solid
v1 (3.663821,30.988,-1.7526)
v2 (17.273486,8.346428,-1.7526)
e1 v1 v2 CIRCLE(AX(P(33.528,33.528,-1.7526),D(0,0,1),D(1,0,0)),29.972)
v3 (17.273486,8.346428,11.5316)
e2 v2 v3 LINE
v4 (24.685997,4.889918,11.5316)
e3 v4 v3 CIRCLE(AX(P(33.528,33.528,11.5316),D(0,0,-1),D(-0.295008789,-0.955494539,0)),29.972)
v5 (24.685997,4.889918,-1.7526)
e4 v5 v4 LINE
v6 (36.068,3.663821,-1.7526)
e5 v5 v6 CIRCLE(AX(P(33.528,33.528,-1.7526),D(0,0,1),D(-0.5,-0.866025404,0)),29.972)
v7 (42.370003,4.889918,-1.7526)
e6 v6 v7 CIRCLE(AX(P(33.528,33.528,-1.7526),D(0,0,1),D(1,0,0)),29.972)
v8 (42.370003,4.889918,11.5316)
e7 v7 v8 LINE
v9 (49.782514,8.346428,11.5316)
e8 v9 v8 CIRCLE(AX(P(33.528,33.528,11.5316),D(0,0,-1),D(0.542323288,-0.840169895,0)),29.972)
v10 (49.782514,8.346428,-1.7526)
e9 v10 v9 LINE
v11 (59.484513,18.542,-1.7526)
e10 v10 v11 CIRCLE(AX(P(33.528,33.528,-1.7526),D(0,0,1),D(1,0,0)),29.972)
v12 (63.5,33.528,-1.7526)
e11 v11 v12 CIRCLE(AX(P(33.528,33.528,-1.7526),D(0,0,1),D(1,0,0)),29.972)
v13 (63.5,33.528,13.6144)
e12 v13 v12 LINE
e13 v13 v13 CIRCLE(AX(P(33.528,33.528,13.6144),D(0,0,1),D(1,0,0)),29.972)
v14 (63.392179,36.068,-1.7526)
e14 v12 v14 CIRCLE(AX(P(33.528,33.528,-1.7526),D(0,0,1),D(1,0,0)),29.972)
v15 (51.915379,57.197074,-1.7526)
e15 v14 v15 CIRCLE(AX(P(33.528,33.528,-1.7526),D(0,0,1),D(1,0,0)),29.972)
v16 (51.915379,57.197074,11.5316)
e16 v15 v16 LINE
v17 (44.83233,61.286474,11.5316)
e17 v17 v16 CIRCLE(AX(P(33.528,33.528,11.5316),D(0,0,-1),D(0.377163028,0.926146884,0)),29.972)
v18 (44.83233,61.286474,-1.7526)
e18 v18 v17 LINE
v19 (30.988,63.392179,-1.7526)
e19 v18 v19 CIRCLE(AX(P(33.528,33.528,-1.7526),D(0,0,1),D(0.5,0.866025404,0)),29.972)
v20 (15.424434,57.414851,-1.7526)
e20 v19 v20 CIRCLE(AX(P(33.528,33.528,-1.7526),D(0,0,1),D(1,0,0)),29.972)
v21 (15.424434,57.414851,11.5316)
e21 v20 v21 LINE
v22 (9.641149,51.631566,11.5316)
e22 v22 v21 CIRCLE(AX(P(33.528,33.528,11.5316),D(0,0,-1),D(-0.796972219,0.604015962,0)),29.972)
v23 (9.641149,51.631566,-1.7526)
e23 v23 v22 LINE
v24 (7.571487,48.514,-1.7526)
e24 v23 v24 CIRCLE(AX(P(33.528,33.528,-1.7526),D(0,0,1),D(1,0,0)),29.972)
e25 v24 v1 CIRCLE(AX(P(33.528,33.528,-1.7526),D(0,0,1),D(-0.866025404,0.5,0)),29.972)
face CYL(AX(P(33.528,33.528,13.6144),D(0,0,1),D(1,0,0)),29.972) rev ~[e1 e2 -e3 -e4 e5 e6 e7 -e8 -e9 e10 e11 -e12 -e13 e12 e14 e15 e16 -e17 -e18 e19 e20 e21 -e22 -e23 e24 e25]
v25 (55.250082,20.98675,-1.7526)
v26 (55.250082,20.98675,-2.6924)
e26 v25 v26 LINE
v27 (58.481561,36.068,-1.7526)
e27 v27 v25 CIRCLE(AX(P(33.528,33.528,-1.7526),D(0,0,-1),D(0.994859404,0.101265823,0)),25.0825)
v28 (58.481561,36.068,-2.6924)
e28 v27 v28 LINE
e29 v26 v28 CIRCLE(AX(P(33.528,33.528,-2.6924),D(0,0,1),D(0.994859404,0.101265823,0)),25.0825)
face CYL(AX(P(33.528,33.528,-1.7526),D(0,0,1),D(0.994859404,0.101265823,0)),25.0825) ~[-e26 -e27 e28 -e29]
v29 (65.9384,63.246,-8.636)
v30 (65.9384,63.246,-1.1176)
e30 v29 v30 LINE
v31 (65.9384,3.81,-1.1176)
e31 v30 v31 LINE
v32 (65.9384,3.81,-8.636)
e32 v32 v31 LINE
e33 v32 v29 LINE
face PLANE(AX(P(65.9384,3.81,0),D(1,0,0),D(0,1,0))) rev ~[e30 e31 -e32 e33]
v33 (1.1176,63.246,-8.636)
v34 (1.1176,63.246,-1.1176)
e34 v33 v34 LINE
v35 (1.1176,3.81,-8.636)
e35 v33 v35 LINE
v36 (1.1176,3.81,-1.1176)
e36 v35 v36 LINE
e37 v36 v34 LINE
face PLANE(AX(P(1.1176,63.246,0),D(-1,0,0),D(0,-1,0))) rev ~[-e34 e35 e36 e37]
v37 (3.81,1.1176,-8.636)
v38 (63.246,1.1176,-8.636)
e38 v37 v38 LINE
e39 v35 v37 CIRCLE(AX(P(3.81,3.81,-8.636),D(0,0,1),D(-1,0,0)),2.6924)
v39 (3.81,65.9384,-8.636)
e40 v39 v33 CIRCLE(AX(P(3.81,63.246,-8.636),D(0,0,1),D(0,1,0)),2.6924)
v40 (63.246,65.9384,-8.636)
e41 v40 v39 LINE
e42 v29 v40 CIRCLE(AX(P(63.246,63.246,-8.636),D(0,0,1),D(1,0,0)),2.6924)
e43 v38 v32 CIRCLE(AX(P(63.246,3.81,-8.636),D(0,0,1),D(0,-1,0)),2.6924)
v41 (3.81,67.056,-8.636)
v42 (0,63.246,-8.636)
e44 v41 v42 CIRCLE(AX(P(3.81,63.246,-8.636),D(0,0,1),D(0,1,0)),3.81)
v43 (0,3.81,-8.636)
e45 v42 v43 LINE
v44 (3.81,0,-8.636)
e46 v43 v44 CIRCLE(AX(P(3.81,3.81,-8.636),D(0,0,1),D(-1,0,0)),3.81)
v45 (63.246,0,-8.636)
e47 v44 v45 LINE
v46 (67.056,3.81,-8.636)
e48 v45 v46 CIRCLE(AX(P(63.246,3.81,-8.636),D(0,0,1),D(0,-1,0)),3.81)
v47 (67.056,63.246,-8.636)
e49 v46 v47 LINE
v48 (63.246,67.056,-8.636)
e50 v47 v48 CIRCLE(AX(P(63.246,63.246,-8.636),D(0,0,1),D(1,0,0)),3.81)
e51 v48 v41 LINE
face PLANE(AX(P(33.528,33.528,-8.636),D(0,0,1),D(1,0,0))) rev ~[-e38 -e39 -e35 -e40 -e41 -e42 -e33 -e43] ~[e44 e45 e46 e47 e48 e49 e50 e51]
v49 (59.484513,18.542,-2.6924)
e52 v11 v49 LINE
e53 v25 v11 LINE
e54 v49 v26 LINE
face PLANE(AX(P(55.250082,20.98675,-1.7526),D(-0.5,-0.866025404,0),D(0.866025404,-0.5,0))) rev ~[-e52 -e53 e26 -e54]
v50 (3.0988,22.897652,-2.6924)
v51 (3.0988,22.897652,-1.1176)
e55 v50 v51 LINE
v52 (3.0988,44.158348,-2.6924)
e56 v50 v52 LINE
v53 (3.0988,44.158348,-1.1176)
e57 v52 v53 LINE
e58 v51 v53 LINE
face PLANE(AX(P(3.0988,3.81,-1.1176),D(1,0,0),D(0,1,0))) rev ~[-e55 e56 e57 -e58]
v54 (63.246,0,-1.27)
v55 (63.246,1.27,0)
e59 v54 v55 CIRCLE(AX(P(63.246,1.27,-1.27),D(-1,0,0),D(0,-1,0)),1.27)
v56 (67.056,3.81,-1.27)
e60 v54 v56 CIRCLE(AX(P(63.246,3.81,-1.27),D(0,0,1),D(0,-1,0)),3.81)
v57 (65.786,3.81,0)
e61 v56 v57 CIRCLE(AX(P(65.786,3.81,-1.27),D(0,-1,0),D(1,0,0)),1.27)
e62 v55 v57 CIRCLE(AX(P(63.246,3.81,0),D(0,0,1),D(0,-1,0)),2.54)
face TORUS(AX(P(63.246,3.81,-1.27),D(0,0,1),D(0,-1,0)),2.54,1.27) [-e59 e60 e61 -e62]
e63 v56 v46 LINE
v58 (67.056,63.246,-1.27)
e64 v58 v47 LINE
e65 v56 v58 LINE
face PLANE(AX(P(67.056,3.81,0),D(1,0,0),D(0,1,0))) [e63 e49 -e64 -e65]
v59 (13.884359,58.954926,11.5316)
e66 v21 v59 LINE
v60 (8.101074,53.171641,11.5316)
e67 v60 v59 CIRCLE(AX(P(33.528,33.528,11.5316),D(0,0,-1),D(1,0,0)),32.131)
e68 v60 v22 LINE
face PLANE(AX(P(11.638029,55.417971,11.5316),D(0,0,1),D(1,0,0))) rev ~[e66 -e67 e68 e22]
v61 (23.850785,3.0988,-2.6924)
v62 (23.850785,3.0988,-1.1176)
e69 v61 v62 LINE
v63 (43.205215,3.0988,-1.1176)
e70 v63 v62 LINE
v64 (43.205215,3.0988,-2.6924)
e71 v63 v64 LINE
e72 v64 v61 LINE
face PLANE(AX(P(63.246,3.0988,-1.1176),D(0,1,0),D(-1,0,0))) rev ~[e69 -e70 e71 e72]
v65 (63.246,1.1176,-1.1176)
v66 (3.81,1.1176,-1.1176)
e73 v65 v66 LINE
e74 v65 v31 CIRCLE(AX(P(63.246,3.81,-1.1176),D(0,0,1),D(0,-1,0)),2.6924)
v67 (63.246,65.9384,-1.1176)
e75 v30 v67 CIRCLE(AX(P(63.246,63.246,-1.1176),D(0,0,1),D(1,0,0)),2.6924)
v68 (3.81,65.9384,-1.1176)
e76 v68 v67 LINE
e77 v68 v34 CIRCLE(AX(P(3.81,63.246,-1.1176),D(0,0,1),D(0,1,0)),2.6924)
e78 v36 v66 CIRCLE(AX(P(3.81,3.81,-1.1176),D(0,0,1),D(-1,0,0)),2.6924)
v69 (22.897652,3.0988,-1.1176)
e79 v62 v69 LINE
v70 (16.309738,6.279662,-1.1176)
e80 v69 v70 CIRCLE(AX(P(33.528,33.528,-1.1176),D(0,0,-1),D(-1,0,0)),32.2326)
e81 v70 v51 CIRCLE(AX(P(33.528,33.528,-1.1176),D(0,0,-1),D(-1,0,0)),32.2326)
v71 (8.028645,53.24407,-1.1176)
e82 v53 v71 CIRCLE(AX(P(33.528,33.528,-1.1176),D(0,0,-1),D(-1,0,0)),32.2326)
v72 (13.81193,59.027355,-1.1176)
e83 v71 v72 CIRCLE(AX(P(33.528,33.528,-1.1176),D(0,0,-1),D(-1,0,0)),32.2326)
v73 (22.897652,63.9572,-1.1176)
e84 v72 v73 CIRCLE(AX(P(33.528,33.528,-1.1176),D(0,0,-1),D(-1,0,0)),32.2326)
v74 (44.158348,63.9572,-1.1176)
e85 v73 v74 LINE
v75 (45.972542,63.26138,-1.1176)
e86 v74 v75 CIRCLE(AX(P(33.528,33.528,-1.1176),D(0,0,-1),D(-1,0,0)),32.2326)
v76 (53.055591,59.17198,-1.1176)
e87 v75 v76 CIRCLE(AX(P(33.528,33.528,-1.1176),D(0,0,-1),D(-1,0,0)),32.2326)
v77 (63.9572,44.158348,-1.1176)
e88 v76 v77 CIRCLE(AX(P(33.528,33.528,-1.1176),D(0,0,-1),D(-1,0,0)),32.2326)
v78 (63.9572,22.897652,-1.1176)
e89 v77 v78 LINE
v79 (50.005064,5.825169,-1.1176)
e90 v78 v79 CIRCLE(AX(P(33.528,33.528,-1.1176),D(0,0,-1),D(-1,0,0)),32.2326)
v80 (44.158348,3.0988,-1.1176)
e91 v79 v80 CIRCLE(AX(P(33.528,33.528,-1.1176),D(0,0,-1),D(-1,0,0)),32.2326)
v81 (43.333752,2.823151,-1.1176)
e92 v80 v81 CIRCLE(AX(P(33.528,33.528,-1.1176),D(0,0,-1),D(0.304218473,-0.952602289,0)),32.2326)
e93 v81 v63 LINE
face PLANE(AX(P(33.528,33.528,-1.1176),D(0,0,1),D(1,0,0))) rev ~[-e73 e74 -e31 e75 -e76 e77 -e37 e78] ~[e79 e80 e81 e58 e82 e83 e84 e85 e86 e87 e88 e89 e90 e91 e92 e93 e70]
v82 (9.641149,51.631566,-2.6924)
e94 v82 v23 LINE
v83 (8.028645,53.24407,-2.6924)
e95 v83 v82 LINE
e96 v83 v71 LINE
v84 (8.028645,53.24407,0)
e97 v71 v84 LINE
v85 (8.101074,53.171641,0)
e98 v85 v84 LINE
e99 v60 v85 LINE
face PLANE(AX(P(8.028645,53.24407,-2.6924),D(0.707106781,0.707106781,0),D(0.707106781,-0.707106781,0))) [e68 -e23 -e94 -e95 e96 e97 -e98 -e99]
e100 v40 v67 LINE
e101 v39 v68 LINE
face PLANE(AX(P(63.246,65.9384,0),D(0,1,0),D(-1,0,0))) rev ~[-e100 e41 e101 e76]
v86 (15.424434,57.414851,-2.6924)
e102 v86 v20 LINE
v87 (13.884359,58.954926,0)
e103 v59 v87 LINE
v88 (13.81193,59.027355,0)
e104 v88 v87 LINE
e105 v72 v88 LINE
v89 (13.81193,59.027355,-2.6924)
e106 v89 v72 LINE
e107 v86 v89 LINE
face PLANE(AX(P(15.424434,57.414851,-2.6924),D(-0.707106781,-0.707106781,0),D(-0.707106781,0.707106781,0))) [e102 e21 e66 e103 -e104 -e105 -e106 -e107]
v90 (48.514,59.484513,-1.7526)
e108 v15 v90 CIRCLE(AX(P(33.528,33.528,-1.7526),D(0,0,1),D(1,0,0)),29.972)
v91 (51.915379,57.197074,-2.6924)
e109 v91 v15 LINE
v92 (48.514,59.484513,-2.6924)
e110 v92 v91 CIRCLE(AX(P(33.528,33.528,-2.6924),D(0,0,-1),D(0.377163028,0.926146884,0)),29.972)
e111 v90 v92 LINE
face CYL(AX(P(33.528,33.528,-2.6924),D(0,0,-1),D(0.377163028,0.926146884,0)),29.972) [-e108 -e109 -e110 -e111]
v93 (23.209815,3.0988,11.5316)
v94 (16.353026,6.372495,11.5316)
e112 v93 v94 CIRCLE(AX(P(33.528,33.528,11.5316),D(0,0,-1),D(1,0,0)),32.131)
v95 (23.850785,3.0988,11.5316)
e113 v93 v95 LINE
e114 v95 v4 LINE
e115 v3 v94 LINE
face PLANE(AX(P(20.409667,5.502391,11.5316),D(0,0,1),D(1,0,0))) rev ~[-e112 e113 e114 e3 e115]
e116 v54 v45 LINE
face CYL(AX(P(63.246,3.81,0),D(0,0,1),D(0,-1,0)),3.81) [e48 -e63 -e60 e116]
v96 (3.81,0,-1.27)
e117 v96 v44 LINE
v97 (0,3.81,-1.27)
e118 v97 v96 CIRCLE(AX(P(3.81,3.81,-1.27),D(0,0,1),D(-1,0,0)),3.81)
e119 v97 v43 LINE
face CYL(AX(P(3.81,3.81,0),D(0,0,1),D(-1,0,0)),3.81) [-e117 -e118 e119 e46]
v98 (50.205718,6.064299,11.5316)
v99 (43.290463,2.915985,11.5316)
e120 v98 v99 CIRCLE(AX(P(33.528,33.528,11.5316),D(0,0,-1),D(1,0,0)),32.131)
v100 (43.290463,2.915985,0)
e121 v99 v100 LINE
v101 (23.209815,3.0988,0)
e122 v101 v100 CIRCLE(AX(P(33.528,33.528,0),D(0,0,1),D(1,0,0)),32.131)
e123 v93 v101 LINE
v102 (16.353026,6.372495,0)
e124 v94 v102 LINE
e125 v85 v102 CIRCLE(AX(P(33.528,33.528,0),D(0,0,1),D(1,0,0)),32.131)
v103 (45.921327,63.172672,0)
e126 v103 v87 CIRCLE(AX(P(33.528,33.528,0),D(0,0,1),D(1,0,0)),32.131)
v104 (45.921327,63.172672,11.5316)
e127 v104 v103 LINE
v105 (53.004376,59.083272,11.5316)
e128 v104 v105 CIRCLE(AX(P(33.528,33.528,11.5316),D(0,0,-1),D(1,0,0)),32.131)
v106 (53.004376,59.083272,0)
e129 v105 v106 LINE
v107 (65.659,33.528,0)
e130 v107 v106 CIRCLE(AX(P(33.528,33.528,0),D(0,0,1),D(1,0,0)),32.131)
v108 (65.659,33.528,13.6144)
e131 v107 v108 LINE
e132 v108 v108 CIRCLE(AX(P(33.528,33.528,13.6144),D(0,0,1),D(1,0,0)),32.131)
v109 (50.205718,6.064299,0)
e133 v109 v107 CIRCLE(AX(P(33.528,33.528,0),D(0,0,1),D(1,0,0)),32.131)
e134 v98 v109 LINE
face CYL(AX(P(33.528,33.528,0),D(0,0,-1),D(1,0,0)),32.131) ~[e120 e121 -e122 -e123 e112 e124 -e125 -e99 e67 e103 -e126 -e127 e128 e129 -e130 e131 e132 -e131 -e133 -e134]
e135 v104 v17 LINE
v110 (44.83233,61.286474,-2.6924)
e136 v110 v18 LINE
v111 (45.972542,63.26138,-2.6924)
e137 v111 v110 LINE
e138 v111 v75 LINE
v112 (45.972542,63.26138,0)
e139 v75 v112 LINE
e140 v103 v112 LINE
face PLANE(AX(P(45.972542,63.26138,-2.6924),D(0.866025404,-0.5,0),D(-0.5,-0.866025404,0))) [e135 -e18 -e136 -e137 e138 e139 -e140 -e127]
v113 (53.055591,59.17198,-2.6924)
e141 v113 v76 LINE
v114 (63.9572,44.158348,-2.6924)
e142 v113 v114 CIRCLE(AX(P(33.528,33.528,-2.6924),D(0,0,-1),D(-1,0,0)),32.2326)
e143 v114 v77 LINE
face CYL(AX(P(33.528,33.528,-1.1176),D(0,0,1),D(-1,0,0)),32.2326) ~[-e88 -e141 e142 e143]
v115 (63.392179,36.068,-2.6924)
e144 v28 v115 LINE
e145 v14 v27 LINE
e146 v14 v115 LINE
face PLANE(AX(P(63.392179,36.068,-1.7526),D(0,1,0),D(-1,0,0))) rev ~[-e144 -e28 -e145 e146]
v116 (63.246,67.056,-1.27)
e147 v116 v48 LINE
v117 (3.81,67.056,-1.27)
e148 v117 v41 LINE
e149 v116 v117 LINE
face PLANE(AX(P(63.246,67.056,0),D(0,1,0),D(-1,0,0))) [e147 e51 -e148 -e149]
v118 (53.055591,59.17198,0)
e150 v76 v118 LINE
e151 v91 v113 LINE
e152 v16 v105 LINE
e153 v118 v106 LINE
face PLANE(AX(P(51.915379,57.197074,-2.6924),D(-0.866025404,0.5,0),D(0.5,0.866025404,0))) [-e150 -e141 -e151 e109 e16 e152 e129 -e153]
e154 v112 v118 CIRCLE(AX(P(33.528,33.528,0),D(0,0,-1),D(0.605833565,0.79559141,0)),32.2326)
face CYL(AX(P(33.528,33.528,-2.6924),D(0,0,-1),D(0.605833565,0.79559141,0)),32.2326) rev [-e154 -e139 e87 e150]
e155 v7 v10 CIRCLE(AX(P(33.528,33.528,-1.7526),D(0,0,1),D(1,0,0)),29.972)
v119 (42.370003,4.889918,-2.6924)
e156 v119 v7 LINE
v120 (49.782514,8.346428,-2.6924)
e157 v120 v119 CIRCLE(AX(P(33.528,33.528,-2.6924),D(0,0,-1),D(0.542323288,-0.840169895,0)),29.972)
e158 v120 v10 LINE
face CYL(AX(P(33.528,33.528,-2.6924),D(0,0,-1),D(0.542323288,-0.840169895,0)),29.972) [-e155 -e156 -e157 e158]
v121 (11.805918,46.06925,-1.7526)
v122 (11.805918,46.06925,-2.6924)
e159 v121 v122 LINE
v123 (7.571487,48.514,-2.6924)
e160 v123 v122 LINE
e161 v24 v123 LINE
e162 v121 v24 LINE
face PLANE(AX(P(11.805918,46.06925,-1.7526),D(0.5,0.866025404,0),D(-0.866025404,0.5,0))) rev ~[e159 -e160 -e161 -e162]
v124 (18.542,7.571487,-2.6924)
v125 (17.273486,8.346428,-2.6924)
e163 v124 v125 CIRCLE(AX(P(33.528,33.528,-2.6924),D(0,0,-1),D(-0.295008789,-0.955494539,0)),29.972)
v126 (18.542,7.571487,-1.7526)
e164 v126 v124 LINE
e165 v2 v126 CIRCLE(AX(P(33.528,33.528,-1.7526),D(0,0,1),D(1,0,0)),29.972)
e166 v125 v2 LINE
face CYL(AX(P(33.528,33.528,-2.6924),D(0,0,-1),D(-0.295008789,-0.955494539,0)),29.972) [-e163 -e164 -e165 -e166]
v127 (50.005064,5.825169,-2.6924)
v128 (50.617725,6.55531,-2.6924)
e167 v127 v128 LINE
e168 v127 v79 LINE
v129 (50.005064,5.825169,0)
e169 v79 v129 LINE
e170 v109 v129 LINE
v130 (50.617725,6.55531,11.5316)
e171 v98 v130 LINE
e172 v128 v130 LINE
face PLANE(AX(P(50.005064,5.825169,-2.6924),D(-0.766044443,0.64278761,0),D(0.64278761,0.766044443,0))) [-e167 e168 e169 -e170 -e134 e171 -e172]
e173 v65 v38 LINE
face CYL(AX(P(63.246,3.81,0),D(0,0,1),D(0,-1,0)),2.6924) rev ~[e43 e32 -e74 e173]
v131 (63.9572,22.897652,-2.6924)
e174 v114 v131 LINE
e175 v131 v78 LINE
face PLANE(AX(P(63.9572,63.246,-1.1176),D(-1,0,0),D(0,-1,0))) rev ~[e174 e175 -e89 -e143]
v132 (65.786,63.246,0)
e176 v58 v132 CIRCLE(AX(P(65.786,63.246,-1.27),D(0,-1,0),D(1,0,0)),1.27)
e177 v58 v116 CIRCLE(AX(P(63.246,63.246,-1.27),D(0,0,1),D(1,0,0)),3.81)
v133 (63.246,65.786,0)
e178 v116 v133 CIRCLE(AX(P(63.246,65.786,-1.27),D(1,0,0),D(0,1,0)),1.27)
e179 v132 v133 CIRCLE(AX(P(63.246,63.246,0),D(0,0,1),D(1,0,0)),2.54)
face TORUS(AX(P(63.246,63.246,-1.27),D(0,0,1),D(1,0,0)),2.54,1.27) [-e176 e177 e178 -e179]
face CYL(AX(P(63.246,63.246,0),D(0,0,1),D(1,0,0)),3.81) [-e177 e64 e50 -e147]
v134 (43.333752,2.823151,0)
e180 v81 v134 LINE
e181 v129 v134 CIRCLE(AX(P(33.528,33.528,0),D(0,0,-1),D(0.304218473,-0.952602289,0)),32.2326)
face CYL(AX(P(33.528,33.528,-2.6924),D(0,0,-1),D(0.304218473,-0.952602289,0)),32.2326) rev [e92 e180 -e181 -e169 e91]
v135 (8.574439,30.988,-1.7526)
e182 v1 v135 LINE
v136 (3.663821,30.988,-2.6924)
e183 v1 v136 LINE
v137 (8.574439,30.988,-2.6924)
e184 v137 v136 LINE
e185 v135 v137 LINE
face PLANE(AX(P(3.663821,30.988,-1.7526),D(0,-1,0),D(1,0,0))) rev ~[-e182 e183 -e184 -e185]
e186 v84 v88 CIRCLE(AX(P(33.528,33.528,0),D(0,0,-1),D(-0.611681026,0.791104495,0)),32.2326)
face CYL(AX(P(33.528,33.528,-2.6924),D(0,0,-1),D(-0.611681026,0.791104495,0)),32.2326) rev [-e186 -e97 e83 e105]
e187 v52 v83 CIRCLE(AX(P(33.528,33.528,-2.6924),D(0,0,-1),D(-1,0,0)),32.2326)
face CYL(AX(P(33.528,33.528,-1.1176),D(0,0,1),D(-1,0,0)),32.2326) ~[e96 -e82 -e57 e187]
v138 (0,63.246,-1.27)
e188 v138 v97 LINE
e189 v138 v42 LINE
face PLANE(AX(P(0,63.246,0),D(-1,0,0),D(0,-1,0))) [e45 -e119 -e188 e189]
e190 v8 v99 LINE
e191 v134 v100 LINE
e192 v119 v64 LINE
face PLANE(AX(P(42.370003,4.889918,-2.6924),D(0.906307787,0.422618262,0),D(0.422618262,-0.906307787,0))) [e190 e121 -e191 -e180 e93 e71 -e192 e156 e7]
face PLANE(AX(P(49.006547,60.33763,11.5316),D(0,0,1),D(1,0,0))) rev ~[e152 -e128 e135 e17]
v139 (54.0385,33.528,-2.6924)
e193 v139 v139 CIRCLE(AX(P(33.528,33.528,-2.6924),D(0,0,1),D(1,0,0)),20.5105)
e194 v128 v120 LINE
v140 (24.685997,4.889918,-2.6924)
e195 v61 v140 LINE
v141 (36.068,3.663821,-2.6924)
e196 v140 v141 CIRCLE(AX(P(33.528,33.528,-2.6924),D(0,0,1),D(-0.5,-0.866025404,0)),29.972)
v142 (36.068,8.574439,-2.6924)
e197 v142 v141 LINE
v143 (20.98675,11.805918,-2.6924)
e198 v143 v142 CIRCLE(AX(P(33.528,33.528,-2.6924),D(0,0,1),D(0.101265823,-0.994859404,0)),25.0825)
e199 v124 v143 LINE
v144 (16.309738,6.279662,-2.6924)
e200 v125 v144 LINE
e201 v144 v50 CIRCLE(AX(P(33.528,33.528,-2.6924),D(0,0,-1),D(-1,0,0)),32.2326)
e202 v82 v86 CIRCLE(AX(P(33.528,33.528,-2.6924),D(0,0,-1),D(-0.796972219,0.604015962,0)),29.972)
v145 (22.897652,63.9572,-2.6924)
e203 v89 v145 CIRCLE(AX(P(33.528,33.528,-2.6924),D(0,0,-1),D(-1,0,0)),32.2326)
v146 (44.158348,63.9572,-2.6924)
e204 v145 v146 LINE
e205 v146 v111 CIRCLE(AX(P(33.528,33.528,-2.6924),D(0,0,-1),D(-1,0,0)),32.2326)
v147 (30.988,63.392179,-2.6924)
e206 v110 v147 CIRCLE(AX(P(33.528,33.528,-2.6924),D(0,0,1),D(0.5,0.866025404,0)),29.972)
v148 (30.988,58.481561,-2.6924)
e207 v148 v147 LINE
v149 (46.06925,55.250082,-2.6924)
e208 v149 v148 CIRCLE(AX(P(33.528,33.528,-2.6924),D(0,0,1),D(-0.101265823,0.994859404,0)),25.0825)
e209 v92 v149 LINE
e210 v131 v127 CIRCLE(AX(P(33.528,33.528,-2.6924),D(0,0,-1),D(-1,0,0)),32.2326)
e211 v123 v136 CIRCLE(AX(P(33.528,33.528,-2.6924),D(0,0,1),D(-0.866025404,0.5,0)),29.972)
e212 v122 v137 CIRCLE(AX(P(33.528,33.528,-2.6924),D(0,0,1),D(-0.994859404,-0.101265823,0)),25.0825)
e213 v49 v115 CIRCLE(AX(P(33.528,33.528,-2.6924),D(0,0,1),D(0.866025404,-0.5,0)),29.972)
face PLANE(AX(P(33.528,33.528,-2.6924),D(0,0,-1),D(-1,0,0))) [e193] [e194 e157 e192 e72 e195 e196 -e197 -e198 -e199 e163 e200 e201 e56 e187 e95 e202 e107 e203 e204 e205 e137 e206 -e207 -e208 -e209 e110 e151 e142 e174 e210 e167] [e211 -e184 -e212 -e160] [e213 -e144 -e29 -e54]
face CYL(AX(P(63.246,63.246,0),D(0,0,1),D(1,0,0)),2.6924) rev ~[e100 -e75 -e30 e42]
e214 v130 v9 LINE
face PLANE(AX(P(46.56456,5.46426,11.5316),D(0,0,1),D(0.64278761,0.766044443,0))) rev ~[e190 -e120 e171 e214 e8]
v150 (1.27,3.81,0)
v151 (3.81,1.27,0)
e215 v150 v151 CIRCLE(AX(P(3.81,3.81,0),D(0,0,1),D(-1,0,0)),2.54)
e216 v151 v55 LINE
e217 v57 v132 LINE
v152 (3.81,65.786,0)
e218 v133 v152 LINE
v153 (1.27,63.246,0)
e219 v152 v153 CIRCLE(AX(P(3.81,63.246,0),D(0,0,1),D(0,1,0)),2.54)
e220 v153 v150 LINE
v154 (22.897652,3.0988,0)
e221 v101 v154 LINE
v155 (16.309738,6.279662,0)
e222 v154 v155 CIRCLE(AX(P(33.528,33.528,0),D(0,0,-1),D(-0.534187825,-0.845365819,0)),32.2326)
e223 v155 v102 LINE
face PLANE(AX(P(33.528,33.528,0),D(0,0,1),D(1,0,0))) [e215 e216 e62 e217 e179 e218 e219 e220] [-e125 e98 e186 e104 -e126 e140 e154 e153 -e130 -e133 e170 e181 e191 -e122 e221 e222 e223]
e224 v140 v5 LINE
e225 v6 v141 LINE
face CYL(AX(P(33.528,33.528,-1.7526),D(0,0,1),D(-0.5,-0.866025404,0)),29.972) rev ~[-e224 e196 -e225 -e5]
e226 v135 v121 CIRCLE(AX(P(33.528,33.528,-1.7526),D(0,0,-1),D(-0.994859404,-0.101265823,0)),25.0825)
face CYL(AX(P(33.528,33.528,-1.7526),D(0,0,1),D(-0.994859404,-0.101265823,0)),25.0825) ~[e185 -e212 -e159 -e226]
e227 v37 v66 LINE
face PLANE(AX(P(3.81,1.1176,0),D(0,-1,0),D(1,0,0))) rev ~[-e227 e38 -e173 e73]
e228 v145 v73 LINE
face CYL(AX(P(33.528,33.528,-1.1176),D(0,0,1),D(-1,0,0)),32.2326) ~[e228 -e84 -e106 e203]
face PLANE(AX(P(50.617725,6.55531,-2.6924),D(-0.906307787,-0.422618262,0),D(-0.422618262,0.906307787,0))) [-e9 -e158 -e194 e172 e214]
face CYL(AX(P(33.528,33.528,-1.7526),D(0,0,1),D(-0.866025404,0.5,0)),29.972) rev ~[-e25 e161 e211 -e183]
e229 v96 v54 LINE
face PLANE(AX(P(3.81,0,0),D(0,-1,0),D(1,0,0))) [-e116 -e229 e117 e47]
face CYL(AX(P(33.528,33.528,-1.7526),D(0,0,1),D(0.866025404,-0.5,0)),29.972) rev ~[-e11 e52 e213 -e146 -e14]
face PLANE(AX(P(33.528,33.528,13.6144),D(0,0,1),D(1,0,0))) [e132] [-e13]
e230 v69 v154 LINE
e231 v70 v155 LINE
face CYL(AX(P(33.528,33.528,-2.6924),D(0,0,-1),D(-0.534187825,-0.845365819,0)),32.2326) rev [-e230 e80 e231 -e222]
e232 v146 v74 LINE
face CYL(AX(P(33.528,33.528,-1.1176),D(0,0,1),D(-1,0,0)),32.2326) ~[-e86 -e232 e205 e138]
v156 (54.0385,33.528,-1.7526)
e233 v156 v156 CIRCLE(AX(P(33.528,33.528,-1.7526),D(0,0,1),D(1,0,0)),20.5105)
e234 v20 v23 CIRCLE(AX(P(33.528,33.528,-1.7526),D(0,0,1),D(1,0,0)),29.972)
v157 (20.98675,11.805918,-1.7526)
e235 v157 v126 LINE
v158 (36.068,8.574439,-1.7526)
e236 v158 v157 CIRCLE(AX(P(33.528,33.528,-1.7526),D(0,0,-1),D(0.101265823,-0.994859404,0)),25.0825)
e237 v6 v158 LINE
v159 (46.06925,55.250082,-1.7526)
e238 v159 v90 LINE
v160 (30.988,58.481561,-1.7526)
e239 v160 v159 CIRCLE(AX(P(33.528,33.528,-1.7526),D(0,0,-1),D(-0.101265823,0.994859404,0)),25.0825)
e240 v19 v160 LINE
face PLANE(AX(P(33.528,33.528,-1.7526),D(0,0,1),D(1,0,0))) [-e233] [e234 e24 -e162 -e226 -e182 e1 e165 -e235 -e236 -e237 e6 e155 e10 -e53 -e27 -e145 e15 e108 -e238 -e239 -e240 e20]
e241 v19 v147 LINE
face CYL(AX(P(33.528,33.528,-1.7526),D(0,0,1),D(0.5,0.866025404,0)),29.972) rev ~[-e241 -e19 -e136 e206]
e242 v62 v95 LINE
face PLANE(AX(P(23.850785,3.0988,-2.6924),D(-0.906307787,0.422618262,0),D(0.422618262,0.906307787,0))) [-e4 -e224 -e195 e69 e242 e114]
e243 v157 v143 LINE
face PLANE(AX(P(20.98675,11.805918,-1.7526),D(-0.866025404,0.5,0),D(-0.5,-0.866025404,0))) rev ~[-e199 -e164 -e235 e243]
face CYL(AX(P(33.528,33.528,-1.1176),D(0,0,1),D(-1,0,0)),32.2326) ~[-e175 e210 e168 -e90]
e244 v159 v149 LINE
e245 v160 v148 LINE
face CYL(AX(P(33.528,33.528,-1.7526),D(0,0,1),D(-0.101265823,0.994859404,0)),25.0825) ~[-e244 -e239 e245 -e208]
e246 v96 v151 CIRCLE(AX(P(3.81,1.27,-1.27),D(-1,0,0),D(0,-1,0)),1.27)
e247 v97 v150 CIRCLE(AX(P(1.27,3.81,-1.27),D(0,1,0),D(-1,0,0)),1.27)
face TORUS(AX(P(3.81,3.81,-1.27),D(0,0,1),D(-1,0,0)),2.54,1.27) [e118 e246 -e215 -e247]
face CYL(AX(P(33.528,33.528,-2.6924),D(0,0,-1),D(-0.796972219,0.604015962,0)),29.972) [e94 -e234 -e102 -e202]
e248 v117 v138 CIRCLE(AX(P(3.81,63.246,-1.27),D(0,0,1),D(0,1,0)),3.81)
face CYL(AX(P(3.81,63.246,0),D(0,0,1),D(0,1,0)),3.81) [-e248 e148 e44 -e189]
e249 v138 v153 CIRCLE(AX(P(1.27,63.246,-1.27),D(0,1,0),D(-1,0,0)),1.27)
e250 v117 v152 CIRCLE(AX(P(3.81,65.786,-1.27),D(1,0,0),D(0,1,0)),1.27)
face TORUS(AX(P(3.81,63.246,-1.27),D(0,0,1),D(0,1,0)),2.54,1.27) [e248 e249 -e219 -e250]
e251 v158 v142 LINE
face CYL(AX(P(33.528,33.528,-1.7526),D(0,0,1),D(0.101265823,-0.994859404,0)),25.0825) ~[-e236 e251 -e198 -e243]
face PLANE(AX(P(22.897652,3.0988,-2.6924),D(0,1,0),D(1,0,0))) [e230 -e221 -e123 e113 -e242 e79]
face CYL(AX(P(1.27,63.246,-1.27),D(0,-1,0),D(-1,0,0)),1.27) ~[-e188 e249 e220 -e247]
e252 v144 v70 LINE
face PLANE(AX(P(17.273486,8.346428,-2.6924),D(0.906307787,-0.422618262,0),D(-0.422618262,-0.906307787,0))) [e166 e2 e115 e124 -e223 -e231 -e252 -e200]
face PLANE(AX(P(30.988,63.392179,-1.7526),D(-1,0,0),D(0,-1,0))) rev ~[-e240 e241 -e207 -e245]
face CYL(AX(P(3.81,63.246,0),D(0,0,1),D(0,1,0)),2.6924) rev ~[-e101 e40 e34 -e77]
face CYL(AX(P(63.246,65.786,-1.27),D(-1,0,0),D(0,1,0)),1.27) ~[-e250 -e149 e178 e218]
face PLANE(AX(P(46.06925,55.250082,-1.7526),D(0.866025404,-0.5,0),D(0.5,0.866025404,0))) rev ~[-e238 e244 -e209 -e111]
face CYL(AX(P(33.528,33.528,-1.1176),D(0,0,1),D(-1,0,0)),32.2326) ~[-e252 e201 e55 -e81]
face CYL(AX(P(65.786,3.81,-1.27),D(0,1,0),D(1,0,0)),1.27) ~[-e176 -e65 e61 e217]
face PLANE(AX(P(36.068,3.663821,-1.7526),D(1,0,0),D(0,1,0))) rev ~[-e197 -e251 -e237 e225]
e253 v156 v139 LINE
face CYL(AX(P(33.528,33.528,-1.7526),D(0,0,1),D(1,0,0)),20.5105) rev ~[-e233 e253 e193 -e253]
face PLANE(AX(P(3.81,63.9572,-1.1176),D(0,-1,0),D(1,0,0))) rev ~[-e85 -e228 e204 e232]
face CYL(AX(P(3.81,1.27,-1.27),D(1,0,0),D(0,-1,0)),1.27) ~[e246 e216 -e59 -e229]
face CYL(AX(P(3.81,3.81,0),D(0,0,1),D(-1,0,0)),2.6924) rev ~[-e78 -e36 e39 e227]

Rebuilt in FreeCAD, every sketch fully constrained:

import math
import FreeCAD as App
import Part
import Sketcher
Q = App.Units.Quantity


def edges_at(feature, points):
    """Names of the edges that pass closest to the given points."""
    edges = feature.Shape.Edges
    near = lambda p: min(range(len(edges)), key=lambda i: edges[i].distToShape(Part.Vertex(*p))[0])
    return sorted({f"Edge{near(p) + 1}" for p in points})


def faces_at(feature, points):
    """Names of the faces that lie closest to the given points."""
    faces = feature.Shape.Faces
    near = lambda p: min(range(len(faces)), key=lambda i: faces[i].distToShape(Part.Vertex(*p))[0])
    return sorted({f"Face{near(p) + 1}" for p in points})

doc = App.newDocument("Part")
params = doc.addObject("Spreadsheet::Sheet", "Params")
for row, (alias, value) in enumerate([
    ("sketch1_radius", "0.15 in"),
    ("sketch1_width", "2.34 in"),
    ("pad1_length", "0.34 in"),
    ("thickness_wall", "0.044 in"),
    ("sketch2_diameter", "2.53 in"),
    ("pad2_length", "0.536 in"),
    ("sketch3_diameter", "2.538 in"),
    ("pad3_length", "0.062 in"),
    ("sketch4_radius", "0.106 in"),
    ("sketch4_radius2", "0.028 in"),
    ("sketch4_width", "2.34 in"),
    ("pocket1_length", "0.062 in"),
    ("sketch5_diameter", "2.36 in"),
    ("pocket2_length", "0.605 in"),
    ("sketch6_diameter", "1.615 in"),
    ("sketch7_radius", "1.18 in"),
    ("sketch8_radius", "1.18 in"),
    ("sketch8_radius2", "1.269 in"),
    ("pocket5_length", "0.56 in"),
    ("sketch9_radius", "1.18 in"),
    ("sketch9_radius2", "1.269 in"),
    ("pocket6_length", "0.56 in"),
    ("sketch10_radius", "1.18 in"),
    ("sketch10_radius2", "1.269 in"),
    ("pocket7_length", "0.56 in"),
    ("fillet_radius", "0.05 in"),
], start=1):
    params.set(f"A{row}", alias)
    params.set(f"B{row}", "=" + value)
    params.setAlias(f"B{row}", alias)

body = doc.addObject("PartDesign::Body", "Body")

sketch1 = doc.addObject("Sketcher::SketchObject", "Sketch")
body.addObject(sketch1)
sketch1.AttachmentSupport = (doc.XY_Plane, [""])
sketch1.MapMode = "FlatFace"
sketch1.addGeometry(Part.LineSegment(App.Vector(3.8, 0, 0), App.Vector(63.2, 0, 0)), False)
sketch1.addGeometry(Part.ArcOfCircle(Part.Circle(App.Vector(63.2, 3.8, 0), App.Vector(0, 0, 1), 3.8), math.radians(-90), math.radians(0)), False)
sketch1.addGeometry(Part.LineSegment(App.Vector(67.1, 3.8, 0), App.Vector(67.1, 63.2, 0)), False)
sketch1.addGeometry(Part.ArcOfCircle(Part.Circle(App.Vector(63.2, 63.2, 0), App.Vector(0, 0, 1), 3.8), math.radians(0), math.radians(90)), False)
sketch1.addGeometry(Part.LineSegment(App.Vector(63.2, 67.1, 0), App.Vector(3.8, 67.1, 0)), False)
sketch1.addGeometry(Part.ArcOfCircle(Part.Circle(App.Vector(3.8, 63.2, 0), App.Vector(0, 0, 1), 3.8), math.radians(90), math.radians(180)), False)
sketch1.addGeometry(Part.LineSegment(App.Vector(0, 63.2, 0), App.Vector(0, 3.8, 0)), False)
sketch1.addGeometry(Part.ArcOfCircle(Part.Circle(App.Vector(3.8, 3.8, 0), App.Vector(0, 0, 1), 3.8), math.radians(-180), math.radians(-90)), False)
sketch1.addConstraint(Sketcher.Constraint("Tangent", 0, 2, 1, 1))
sketch1.addConstraint(Sketcher.Constraint("Tangent", 1, 2, 2, 1))
sketch1.addConstraint(Sketcher.Constraint("Tangent", 2, 2, 3, 1))
sketch1.addConstraint(Sketcher.Constraint("Tangent", 3, 2, 4, 1))
sketch1.addConstraint(Sketcher.Constraint("Tangent", 4, 2, 5, 1))
sketch1.addConstraint(Sketcher.Constraint("Tangent", 5, 2, 6, 1))
sketch1.addConstraint(Sketcher.Constraint("Tangent", 6, 2, 7, 1))
sketch1.addConstraint(Sketcher.Constraint("Tangent", 7, 2, 0, 1))
sketch1.addConstraint(Sketcher.Constraint("Horizontal", 0))
sketch1.addConstraint(Sketcher.Constraint("Vertical", 2))
sketch1.addConstraint(Sketcher.Constraint("Horizontal", 4))
sketch1.addConstraint(Sketcher.Constraint("Vertical", 6))
sketch1.addConstraint(Sketcher.Constraint("Equal", 1, 3))
sketch1.addConstraint(Sketcher.Constraint("Equal", 3, 5))
sketch1.addConstraint(Sketcher.Constraint("Equal", 5, 7))
sketch1.addConstraint(Sketcher.Constraint("PointOnObject", 0, 2, -1))
sketch1.addConstraint(Sketcher.Constraint("PointOnObject", 5, 2, -2))
sketch1.addConstraint(Sketcher.Constraint("Equal", 4, 2))
sketch1.addConstraint(Sketcher.Constraint("Radius", 1, Q("0.15 in")))
sketch1.addConstraint(Sketcher.Constraint("DistanceX", 0, 1, 0, 2, Q("2.34 in")))
sketch1.setExpression("Constraints[18]", "Params.sketch1_radius")
sketch1.setExpression("Constraints[19]", "Params.sketch1_width")
pad1 = doc.addObject("PartDesign::Pad", "Pad")
body.addObject(pad1)
pad1.Profile = sketch1
pad1.setExpression("Length", "Params.pad1_length")
pad1.Reversed = True
doc.recompute()

thickness = doc.addObject("PartDesign::Thickness", "Thickness")
body.addObject(thickness)
thickness.Base = (pad1, faces_at(pad1, [(33.528, 33.528, -8.636)]))
thickness.setExpression("Value", "Params.thickness_wall")
thickness.Reversed = True
thickness.Join = "Intersection"

sketch2 = doc.addObject("Sketcher::SketchObject", "Sketch001")
body.addObject(sketch2)
sketch2.AttachmentSupport = (doc.XY_Plane, [""])
sketch2.MapMode = "FlatFace"
sketch2.addGeometry(Part.Circle(App.Vector(34, 34, 0), App.Vector(0, 0, 1), 32), False)
sketch2.addConstraint(Sketcher.Constraint("Diameter", 0, Q("2.53 in")))
sketch2.addConstraint(Sketcher.Constraint("DistanceX", -1, 1, 0, 3, Q("1.32 in")))
sketch2.addConstraint(Sketcher.Constraint("DistanceY", -1, 1, 0, 3, Q("1.32 in")))
sketch2.setExpression("Constraints[0]", "Params.sketch2_diameter")
pad2 = doc.addObject("PartDesign::Pad", "Pad001")
body.addObject(pad2)
pad2.Profile = sketch2
pad2.setExpression("Length", "Params.pad2_length")

sketch3 = doc.addObject("Sketcher::SketchObject", "Sketch002")
body.addObject(sketch3)
sketch3.AttachmentSupport = (doc.XY_Plane, [""])
sketch3.MapMode = "FlatFace"
sketch3.AttachmentOffset = App.Placement(App.Vector(0, 0, -0.044 * 25.4), App.Rotation())
sketch3.addGeometry(Part.Circle(App.Vector(34, 34, 0), App.Vector(0, 0, 1), 32), False)
sketch3.addConstraint(Sketcher.Constraint("Diameter", 0, Q("2.538 in")))
sketch3.addConstraint(Sketcher.Constraint("DistanceX", -1, 1, 0, 3, Q("1.32 in")))
sketch3.addConstraint(Sketcher.Constraint("DistanceY", -1, 1, 0, 3, Q("1.32 in")))
sketch3.setExpression("Constraints[0]", "Params.sketch3_diameter")
pad3 = doc.addObject("PartDesign::Pad", "Pad002")
body.addObject(pad3)
pad3.Profile = sketch3
pad3.setExpression("Length", "Params.pad3_length")
pad3.Reversed = True

sketch4 = doc.addObject("Sketcher::SketchObject", "Sketch003")
body.addObject(sketch4)
sketch4.AttachmentSupport = (doc.XY_Plane, [""])
sketch4.MapMode = "FlatFace"
sketch4.AttachmentOffset = App.Placement(App.Vector(0, 0, -0.044 * 25.4), App.Rotation())
sketch4.addGeometry(Part.LineSegment(App.Vector(3.8, 65.9, 0), App.Vector(63.2, 65.9, 0)), False)
sketch4.addGeometry(Part.ArcOfCircle(Part.Circle(App.Vector(63.2, 63.2, 0), App.Vector(0, 0, 1), 2.7), math.radians(0), math.radians(90)), False)
sketch4.addGeometry(Part.LineSegment(App.Vector(65.9, 63.2, 0), App.Vector(65.9, 3.8, 0)), False)
sketch4.addGeometry(Part.ArcOfCircle(Part.Circle(App.Vector(63.2, 3.8, 0), App.Vector(0, 0, 1), 2.7), math.radians(-90), math.radians(0)), False)
sketch4.addGeometry(Part.LineSegment(App.Vector(63.2, 1.1, 0), App.Vector(3.8, 1.1, 0)), False)
sketch4.addGeometry(Part.ArcOfCircle(Part.Circle(App.Vector(3.8, 3.8, 0), App.Vector(0, 0, 1), 2.7), math.radians(180), math.radians(270)), False)
sketch4.addGeometry(Part.LineSegment(App.Vector(1.1, 3.8, 0), App.Vector(1.1, 63.2, 0)), False)
sketch4.addGeometry(Part.ArcOfCircle(Part.Circle(App.Vector(3.8, 63.2, 0), App.Vector(0, 0, 1), 2.7), math.radians(90), math.radians(180)), False)
sketch4.addGeometry(Part.ArcOfCircle(Part.Circle(App.Vector(3.8, 63.2, 0), App.Vector(0, 0, 1), 0.7), math.radians(90), math.radians(180)), False)
sketch4.addGeometry(Part.LineSegment(App.Vector(3.1, 63.2, 0), App.Vector(3.1, 3.8, 0)), False)
sketch4.addGeometry(Part.ArcOfCircle(Part.Circle(App.Vector(3.8, 3.8, 0), App.Vector(0, 0, 1), 0.7), math.radians(180), math.radians(270)), False)
sketch4.addGeometry(Part.LineSegment(App.Vector(3.8, 3.1, 0), App.Vector(63.2, 3.1, 0)), False)
sketch4.addGeometry(Part.ArcOfCircle(Part.Circle(App.Vector(63.2, 3.8, 0), App.Vector(0, 0, 1), 0.7), math.radians(-90), math.radians(0)), False)
sketch4.addGeometry(Part.LineSegment(App.Vector(64, 3.8, 0), App.Vector(64, 63.2, 0)), False)
sketch4.addGeometry(Part.ArcOfCircle(Part.Circle(App.Vector(63.2, 63.2, 0), App.Vector(0, 0, 1), 0.7), math.radians(0), math.radians(90)), False)
sketch4.addGeometry(Part.LineSegment(App.Vector(63.2, 64, 0), App.Vector(3.8, 64, 0)), False)
sketch4.addConstraint(Sketcher.Constraint("Tangent", 0, 2, 1, 2))
sketch4.addConstraint(Sketcher.Constraint("Tangent", 1, 1, 2, 1))
sketch4.addConstraint(Sketcher.Constraint("Tangent", 2, 2, 3, 2))
sketch4.addConstraint(Sketcher.Constraint("Tangent", 3, 1, 4, 1))
sketch4.addConstraint(Sketcher.Constraint("Tangent", 4, 2, 5, 2))
sketch4.addConstraint(Sketcher.Constraint("Tangent", 5, 1, 6, 1))
sketch4.addConstraint(Sketcher.Constraint("Tangent", 6, 2, 7, 2))
sketch4.addConstraint(Sketcher.Constraint("Tangent", 7, 1, 0, 1))
sketch4.addConstraint(Sketcher.Constraint("Tangent", 8, 2, 9, 1))
sketch4.addConstraint(Sketcher.Constraint("Tangent", 9, 2, 10, 1))
sketch4.addConstraint(Sketcher.Constraint("Tangent", 10, 2, 11, 1))
sketch4.addConstraint(Sketcher.Constraint("Tangent", 11, 2, 12, 1))
sketch4.addConstraint(Sketcher.Constraint("Tangent", 12, 2, 13, 1))
sketch4.addConstraint(Sketcher.Constraint("Tangent", 13, 2, 14, 1))
sketch4.addConstraint(Sketcher.Constraint("Tangent", 14, 2, 15, 1))
sketch4.addConstraint(Sketcher.Constraint("Tangent", 15, 2, 8, 1))
sketch4.addConstraint(Sketcher.Constraint("Horizontal", 0))
sketch4.addConstraint(Sketcher.Constraint("Vertical", 2))
sketch4.addConstraint(Sketcher.Constraint("Horizontal", 4))
sketch4.addConstraint(Sketcher.Constraint("Vertical", 6))
sketch4.addConstraint(Sketcher.Constraint("Vertical", 9))
sketch4.addConstraint(Sketcher.Constraint("Horizontal", 11))
sketch4.addConstraint(Sketcher.Constraint("Vertical", 13))
sketch4.addConstraint(Sketcher.Constraint("Horizontal", 15))
sketch4.addConstraint(Sketcher.Constraint("Coincident", 8, 3, 7, 3))
sketch4.addConstraint(Sketcher.Constraint("Coincident", 10, 3, 5, 3))
sketch4.addConstraint(Sketcher.Constraint("Coincident", 12, 3, 3, 3))
sketch4.addConstraint(Sketcher.Constraint("Equal", 1, 3))
sketch4.addConstraint(Sketcher.Constraint("Equal", 3, 5))
sketch4.addConstraint(Sketcher.Constraint("Equal", 5, 7))
sketch4.addConstraint(Sketcher.Constraint("Equal", 12, 14))
sketch4.addConstraint(Sketcher.Constraint("Equal", 15, 2))
sketch4.addConstraint(Sketcher.Constraint("Radius", 1, Q("0.106 in")))
sketch4.addConstraint(Sketcher.Constraint("Radius", 8, Q("0.028 in")))
sketch4.addConstraint(Sketcher.Constraint("DistanceX", 0, 1, 0, 2, Q("2.34 in")))
sketch4.addConstraint(Sketcher.Constraint("DistanceX", -1, 1, 1, 3, Q("2.49 in")))
sketch4.addConstraint(Sketcher.Constraint("DistanceY", -1, 1, 1, 3, Q("2.49 in")))
sketch4.setExpression("Constraints[32]", "Params.sketch4_radius")
sketch4.setExpression("Constraints[33]", "Params.sketch4_radius2")
sketch4.setExpression("Constraints[34]", "Params.sketch4_width")
pocket1 = doc.addObject("PartDesign::Pocket", "Pocket")
body.addObject(pocket1)
pocket1.Profile = sketch4
pocket1.setExpression("Length", "Params.pocket1_length")

sketch5 = doc.addObject("Sketcher::SketchObject", "Sketch004")
body.addObject(sketch5)
sketch5.AttachmentSupport = (doc.XY_Plane, [""])
sketch5.MapMode = "FlatFace"
sketch5.AttachmentOffset = App.Placement(App.Vector(0, 0, 0.536 * 25.4), App.Rotation())
sketch5.addGeometry(Part.Circle(App.Vector(34, 34, 0), App.Vector(0, 0, 1), 30), False)
sketch5.addConstraint(Sketcher.Constraint("Diameter", 0, Q("2.36 in")))
sketch5.addConstraint(Sketcher.Constraint("DistanceX", -1, 1, 0, 3, Q("1.32 in")))
sketch5.addConstraint(Sketcher.Constraint("DistanceY", -1, 1, 0, 3, Q("1.32 in")))
sketch5.setExpression("Constraints[0]", "Params.sketch5_diameter")
pocket2 = doc.addObject("PartDesign::Pocket", "Pocket001")
body.addObject(pocket2)
pocket2.Profile = sketch5
pocket2.setExpression("Length", "Params.pocket2_length")

sketch6 = doc.addObject("Sketcher::SketchObject", "Sketch005")
body.addObject(sketch6)
sketch6.AttachmentSupport = (doc.XY_Plane, [""])
sketch6.MapMode = "FlatFace"
sketch6.AttachmentOffset = App.Placement(App.Vector(0, 0, -0.069 * 25.4), App.Rotation())
sketch6.addGeometry(Part.Circle(App.Vector(34, 34, 0), App.Vector(0, 0, 1), 21), False)
sketch6.addConstraint(Sketcher.Constraint("Diameter", 0, Q("1.615 in")))
sketch6.addConstraint(Sketcher.Constraint("DistanceX", -1, 1, 0, 3, Q("1.32 in")))
sketch6.addConstraint(Sketcher.Constraint("DistanceY", -1, 1, 0, 3, Q("1.32 in")))
sketch6.setExpression("Constraints[0]", "Params.sketch6_diameter")
pocket3 = doc.addObject("PartDesign::Pocket", "Pocket002")
body.addObject(pocket3)
pocket3.Profile = sketch6
pocket3.Type = "ThroughAll"

sketch7 = doc.addObject("Sketcher::SketchObject", "Sketch006")
body.addObject(sketch7)
sketch7.AttachmentSupport = (doc.XY_Plane, [""])
sketch7.MapMode = "FlatFace"
sketch7.AttachmentOffset = App.Placement(App.Vector(0, 0, -0.069 * 25.4), App.Rotation())
sketch7.addGeometry(Part.LineSegment(App.Vector(31, 63.4, 0), App.Vector(31, 58.5, 0)), False)
sketch7.addGeometry(Part.ArcOfCircle(Part.Circle(App.Vector(33.5, 33.5, 0), App.Vector(0, 0, 1), 25.1), math.radians(60), math.radians(96)), False)
sketch7.addGeometry(Part.LineSegment(App.Vector(46.1, 55.3, 0), App.Vector(48.5, 59.5, 0)), False)
sketch7.addGeometry(Part.ArcOfCircle(Part.Circle(App.Vector(33.5, 33.5, 0), App.Vector(0, 0, 1), 30), math.radians(60), math.radians(95)), False)
sketch7.addConstraint(Sketcher.Constraint("Coincident", 0, 2, 1, 2))
sketch7.addConstraint(Sketcher.Constraint("Coincident", 1, 1, 2, 1))
sketch7.addConstraint(Sketcher.Constraint("Coincident", 2, 2, 3, 1))
sketch7.addConstraint(Sketcher.Constraint("Coincident", 3, 2, 0, 1))
sketch7.addConstraint(Sketcher.Constraint("Vertical", 0))
sketch7.addConstraint(Sketcher.Constraint("Coincident", 3, 3, 1, 3))
sketch7.addConstraint(Sketcher.Constraint("Radius", 3, Q("1.18 in")))
sketch7.addConstraint(Sketcher.Constraint("Angle", 2, Q("60 deg")))
sketch7.addConstraint(Sketcher.Constraint("Radius", 1, Q("0.9875 in")))
sketch7.addConstraint(Sketcher.Constraint("DistanceX", 0, 2, 1, 3, Q("0.1 in")))
sketch7.addConstraint(Sketcher.Constraint("DistanceX", -1, 1, 1, 3, Q("1.32 in")))
sketch7.addConstraint(Sketcher.Constraint("DistanceY", -1, 1, 1, 3, Q("1.32 in")))
sketch7.addConstraint(Sketcher.Constraint("DistanceX", -1, 1, 2, 2, Q("1.91 in")))
sketch7.setExpression("Constraints[6]", "Params.sketch7_radius")
pocket4 = doc.addObject("PartDesign::Pocket", "Pocket003")
body.addObject(pocket4)
pocket4.Profile = sketch7
pocket4.Type = "ThroughAll"
doc.recompute()

datumline = doc.addObject("PartDesign::Line", "DatumLine")
body.addObject(datumline)
datumline.Placement = App.Placement(App.Vector(33.528, 33.528, 0), App.Rotation(App.Vector(0, 0, 1), App.Vector(0, 0, 1)))
polarpattern = doc.addObject("PartDesign::PolarPattern", "PolarPattern")
body.addObject(polarpattern)
polarpattern.Originals = [pocket4]
polarpattern.Axis = (datumline, [""])
polarpattern.Angle = 360
polarpattern.Occurrences = 4
body.Tip = polarpattern

sketch8 = doc.addObject("Sketcher::SketchObject", "Sketch007")
body.addObject(sketch8)
sketch8.AttachmentSupport = (doc.XY_Plane, [""])
sketch8.MapMode = "FlatFace"
sketch8.AttachmentOffset = App.Placement(App.Vector(0, 0, -0.106 * 25.4), App.Rotation())
sketch8.addGeometry(Part.LineSegment(App.Vector(44.8, 61.3, 0), App.Vector(46, 63.3, 0)), False)
sketch8.addGeometry(Part.ArcOfCircle(Part.Circle(App.Vector(33.5, 33.5, 0), App.Vector(0, 0, 1), 32.2), math.radians(52.71), math.radians(67.29)), False)
sketch8.addGeometry(Part.LineSegment(App.Vector(53.1, 59.2, 0), App.Vector(51.9, 57.2, 0)), False)
sketch8.addGeometry(Part.ArcOfCircle(Part.Circle(App.Vector(33.5, 33.5, 0), App.Vector(0, 0, 1), 30), math.radians(52.16), math.radians(67.84)), False)
sketch8.addConstraint(Sketcher.Constraint("Coincident", 0, 2, 1, 2))
sketch8.addConstraint(Sketcher.Constraint("Coincident", 1, 1, 2, 1))
sketch8.addConstraint(Sketcher.Constraint("Coincident", 2, 2, 3, 1))
sketch8.addConstraint(Sketcher.Constraint("Coincident", 3, 2, 0, 1))
sketch8.addConstraint(Sketcher.Constraint("Coincident", 3, 3, 1, 3))
sketch8.addConstraint(Sketcher.Constraint("Parallel", 0, 2))
sketch8.addConstraint(Sketcher.Constraint("Equal", 0, 2))
sketch8.addConstraint(Sketcher.Constraint("Radius", 3, Q("1.18 in")))
sketch8.addConstraint(Sketcher.Constraint("Angle", 0, Q("60 deg")))
sketch8.addConstraint(Sketcher.Constraint("Radius", 1, Q("1.269 in")))
sketch8.addConstraint(Sketcher.Constraint("DistanceX", -1, 1, 1, 3, Q("1.32 in")))
sketch8.addConstraint(Sketcher.Constraint("DistanceY", -1, 1, 1, 3, Q("1.32 in")))
sketch8.addConstraint(Sketcher.Constraint("DistanceY", 1, 1, 0, 2, Q("0.161 in")))
sketch8.setExpression("Constraints[7]", "Params.sketch8_radius")
sketch8.setExpression("Constraints[9]", "Params.sketch8_radius2")
pocket5 = doc.addObject("PartDesign::Pocket", "Pocket004")
body.addObject(pocket5)
pocket5.Profile = sketch8
pocket5.setExpression("Length", "Params.pocket5_length")
pocket5.Reversed = True

sketch9 = doc.addObject("Sketcher::SketchObject", "Sketch008")
body.addObject(sketch9)
sketch9.AttachmentSupport = (doc.XY_Plane, [""])
sketch9.MapMode = "FlatFace"
sketch9.AttachmentOffset = App.Placement(App.Vector(0, 0, -0.106 * 25.4), App.Rotation())
sketch9.addGeometry(Part.LineSegment(App.Vector(9.6, 51.6, 0), App.Vector(8, 53.2, 0)), False)
sketch9.addGeometry(Part.ArcOfCircle(Part.Circle(App.Vector(33.5, 33.5, 0), App.Vector(0, 0, 1), 32.2), math.radians(127.71), math.radians(142.29)), False)
sketch9.addGeometry(Part.LineSegment(App.Vector(13.8, 59, 0), App.Vector(15.4, 57.4, 0)), False)
sketch9.addGeometry(Part.ArcOfCircle(Part.Circle(App.Vector(33.5, 33.5, 0), App.Vector(0, 0, 1), 30), math.radians(127.16), math.radians(142.84)), False)
sketch9.addConstraint(Sketcher.Constraint("Coincident", 0, 2, 1, 2))
sketch9.addConstraint(Sketcher.Constraint("Coincident", 1, 1, 2, 1))
sketch9.addConstraint(Sketcher.Constraint("Coincident", 2, 2, 3, 1))
sketch9.addConstraint(Sketcher.Constraint("Coincident", 3, 2, 0, 1))
sketch9.addConstraint(Sketcher.Constraint("Coincident", 3, 3, 1, 3))
sketch9.addConstraint(Sketcher.Constraint("Parallel", 0, 2))
sketch9.addConstraint(Sketcher.Constraint("Equal", 0, 2))
sketch9.addConstraint(Sketcher.Constraint("Radius", 3, Q("1.18 in")))
sketch9.addConstraint(Sketcher.Constraint("Angle", 0, Q("135 deg")))
sketch9.addConstraint(Sketcher.Constraint("Radius", 1, Q("1.269 in")))
sketch9.addConstraint(Sketcher.Constraint("DistanceX", -1, 1, 1, 3, Q("1.32 in")))
sketch9.addConstraint(Sketcher.Constraint("DistanceY", -1, 1, 1, 3, Q("1.32 in")))
sketch9.addConstraint(Sketcher.Constraint("DistanceY", -1, 1, 0, 2, 53.24407))
sketch9.setExpression("Constraints[7]", "Params.sketch9_radius")
sketch9.setExpression("Constraints[9]", "Params.sketch9_radius2")
pocket6 = doc.addObject("PartDesign::Pocket", "Pocket005")
body.addObject(pocket6)
pocket6.Profile = sketch9
pocket6.setExpression("Length", "Params.pocket6_length")
pocket6.Reversed = True

sketch10 = doc.addObject("Sketcher::SketchObject", "Sketch009")
body.addObject(sketch10)
sketch10.AttachmentSupport = (doc.XY_Plane, [""])
sketch10.MapMode = "FlatFace"
sketch10.AttachmentOffset = App.Placement(App.Vector(0, 0, -0.106 * 25.4), App.Rotation())
sketch10.addGeometry(Part.LineSegment(App.Vector(16.3, 6.3, 0), App.Vector(17.3, 8.3, 0)), False)
sketch10.addGeometry(Part.ArcOfCircle(Part.Circle(App.Vector(33.5, 33.5, 0), App.Vector(0, 0, 1), 30), math.radians(-122.84), math.radians(-107.16)), False)
sketch10.addGeometry(Part.LineSegment(App.Vector(24.7, 4.9, 0), App.Vector(23.9, 3.1, 0)), False)
sketch10.addGeometry(Part.LineSegment(App.Vector(23.9, 3.1, 0), App.Vector(22.9, 3.1, 0)), False)
sketch10.addGeometry(Part.ArcOfCircle(Part.Circle(App.Vector(33.5, 33.5, 0), App.Vector(0, 0, 1), 32.2), math.radians(-122.29), math.radians(-109.26)), False)
sketch10.addConstraint(Sketcher.Constraint("Coincident", 0, 2, 1, 1))
sketch10.addConstraint(Sketcher.Constraint("Coincident", 1, 2, 2, 1))
sketch10.addConstraint(Sketcher.Constraint("Coincident", 2, 2, 3, 1))
sketch10.addConstraint(Sketcher.Constraint("Coincident", 3, 2, 4, 2))
sketch10.addConstraint(Sketcher.Constraint("Coincident", 4, 1, 0, 1))
sketch10.addConstraint(Sketcher.Constraint("Horizontal", 3))
sketch10.addConstraint(Sketcher.Constraint("Coincident", 4, 3, 1, 3))
sketch10.addConstraint(Sketcher.Constraint("Parallel", 0, 2))
sketch10.addConstraint(Sketcher.Constraint("Radius", 1, Q("1.18 in")))
sketch10.addConstraint(Sketcher.Constraint("Angle", 0, Q("65 deg")))
sketch10.addConstraint(Sketcher.Constraint("Radius", 4, Q("1.269 in")))
sketch10.addConstraint(Sketcher.Constraint("DistanceX", -1, 1, 1, 3, Q("1.32 in")))
sketch10.addConstraint(Sketcher.Constraint("DistanceY", -1, 1, 1, 3, Q("1.32 in")))
sketch10.addConstraint(Sketcher.Constraint("DistanceY", -1, 1, 2, 2, Q("0.122 in")))
sketch10.addConstraint(Sketcher.Constraint("DistanceX", 0, 2, 2, 2, 6.577298))
sketch10.addConstraint(Sketcher.Constraint("Distance", 2, 1.97628))
sketch10.setExpression("Constraints[8]", "Params.sketch10_radius")
sketch10.setExpression("Constraints[10]", "Params.sketch10_radius2")
pocket7 = doc.addObject("PartDesign::Pocket", "Pocket006")
body.addObject(pocket7)
pocket7.Profile = sketch10
pocket7.setExpression("Length", "Params.pocket7_length")
pocket7.Reversed = True
doc.recompute()

datumline2 = doc.addObject("PartDesign::Line", "DatumLine001")
body.addObject(datumline2)
datumline2.Placement = App.Placement(App.Vector(33.528, 33.528, 0), App.Rotation(App.Vector(0, 0, 1), App.Vector(0, 0, -1)))
polarpattern2 = doc.addObject("PartDesign::PolarPattern", "PolarPattern001")
body.addObject(polarpattern2)
polarpattern2.Originals = [pocket7]
polarpattern2.Axis = (datumline2, [""])
polarpattern2.Angle = 310
polarpattern2.Occurrences = 2
body.Tip = polarpattern2
doc.recompute()

fillet = doc.addObject("PartDesign::Fillet", "Fillet")
body.addObject(fillet)
fillet.Base = (polarpattern2, edges_at(polarpattern2, [
    (33.528, 0, 0),
    (1.116, 1.116, 0),
    (0, 33.528, 0),
    (1.116, 65.94, 0),
    (33.528, 67.056, 0),
    (65.94, 65.94, 0),
    (67.056, 33.528, 0),
    (65.94, 1.116, 0),
]))
fillet.setExpression("Radius", "Params.fillet_radius")

doc.recompute()
